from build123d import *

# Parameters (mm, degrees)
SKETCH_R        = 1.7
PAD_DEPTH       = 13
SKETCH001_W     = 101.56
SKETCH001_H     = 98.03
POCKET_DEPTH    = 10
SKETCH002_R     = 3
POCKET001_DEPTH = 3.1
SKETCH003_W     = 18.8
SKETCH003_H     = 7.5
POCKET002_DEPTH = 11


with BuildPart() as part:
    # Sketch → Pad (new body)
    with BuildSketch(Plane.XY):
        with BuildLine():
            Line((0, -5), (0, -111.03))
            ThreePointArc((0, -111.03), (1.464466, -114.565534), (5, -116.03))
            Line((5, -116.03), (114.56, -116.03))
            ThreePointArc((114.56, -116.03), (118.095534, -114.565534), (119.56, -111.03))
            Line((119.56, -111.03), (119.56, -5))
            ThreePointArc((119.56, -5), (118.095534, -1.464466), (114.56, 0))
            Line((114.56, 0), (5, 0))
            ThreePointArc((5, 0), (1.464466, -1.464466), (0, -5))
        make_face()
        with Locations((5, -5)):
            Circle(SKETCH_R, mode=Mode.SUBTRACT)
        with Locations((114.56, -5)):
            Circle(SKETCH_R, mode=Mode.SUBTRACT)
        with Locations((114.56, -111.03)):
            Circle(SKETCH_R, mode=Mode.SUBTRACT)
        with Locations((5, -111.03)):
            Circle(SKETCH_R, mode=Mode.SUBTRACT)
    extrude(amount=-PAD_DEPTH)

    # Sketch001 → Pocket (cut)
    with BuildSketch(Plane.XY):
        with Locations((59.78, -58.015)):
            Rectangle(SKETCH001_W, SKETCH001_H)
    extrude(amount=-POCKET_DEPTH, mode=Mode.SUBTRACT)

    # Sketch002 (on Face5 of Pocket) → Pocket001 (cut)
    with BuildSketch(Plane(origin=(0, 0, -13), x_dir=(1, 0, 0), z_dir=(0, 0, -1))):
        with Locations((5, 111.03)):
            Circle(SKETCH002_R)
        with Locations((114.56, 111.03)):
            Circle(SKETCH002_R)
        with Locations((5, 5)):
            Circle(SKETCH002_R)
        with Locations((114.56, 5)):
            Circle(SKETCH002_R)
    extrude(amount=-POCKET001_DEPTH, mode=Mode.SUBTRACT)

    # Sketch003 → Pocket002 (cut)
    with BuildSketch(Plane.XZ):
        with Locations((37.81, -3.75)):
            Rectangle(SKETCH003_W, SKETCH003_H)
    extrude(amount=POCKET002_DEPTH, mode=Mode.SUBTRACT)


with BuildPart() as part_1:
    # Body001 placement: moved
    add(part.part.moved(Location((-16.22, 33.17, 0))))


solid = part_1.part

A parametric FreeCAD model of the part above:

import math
import FreeCAD as App
import Part
import Sketcher
from FreeCAD import Vector
Q = App.Units.Quantity

doc = App.newDocument("Part")
body = doc.addObject("PartDesign::Body", "Body")

# Sketch on XY plane
sketch1 = body.newObject("Sketcher::SketchObject", "Sketch")
sketch1.AttachmentSupport = (doc.getObject("XY_Plane"), [""])
sketch1.MapMode = "FlatFace"
sketch1.addGeometry(Part.LineSegment(Vector(0, -5, 0), Vector(0, -111, 0)), False)
sketch1.addGeometry(Part.ArcOfCircle(Part.Circle(Vector(5, -111, 0), Vector(0, 0, 1), 5), math.radians(180), math.radians(270)), False)
sketch1.addGeometry(Part.LineSegment(Vector(5, -116, 0), Vector(114.6, -116, 0)), False)
sketch1.addGeometry(Part.ArcOfCircle(Part.Circle(Vector(114.6, -111, 0), Vector(0, 0, 1), 5), math.radians(-90), math.radians(0)), False)
sketch1.addGeometry(Part.LineSegment(Vector(119.6, -111, 0), Vector(119.6, -5, 0)), False)
sketch1.addGeometry(Part.ArcOfCircle(Part.Circle(Vector(114.6, -5, 0), Vector(0, 0, 1), 5), math.radians(0), math.radians(90)), False)
sketch1.addGeometry(Part.LineSegment(Vector(114.6, 0, 0), Vector(5, 0, 0)), False)
sketch1.addGeometry(Part.ArcOfCircle(Part.Circle(Vector(5, -5, 0), Vector(0, 0, 1), 5), math.radians(90), math.radians(180)), False)
sketch1.addGeometry(Part.Circle(Vector(5, -111, 0), Vector(0, 0, 1), 1.7), False)
sketch1.addGeometry(Part.Circle(Vector(114.6, -111, 0), Vector(0, 0, 1), 1.7), False)
sketch1.addGeometry(Part.Circle(Vector(5, -5, 0), Vector(0, 0, 1), 1.7), False)
sketch1.addGeometry(Part.Circle(Vector(114.6, -5, 0), Vector(0, 0, 1), 1.7), False)
sketch1.addConstraint(Sketcher.Constraint("Tangent", 0, 2, 1, 1))
sketch1.addConstraint(Sketcher.Constraint("Tangent", 1, 2, 2, 1))
sketch1.addConstraint(Sketcher.Constraint("Tangent", 2, 2, 3, 1))
sketch1.addConstraint(Sketcher.Constraint("Tangent", 3, 2, 4, 1))
sketch1.addConstraint(Sketcher.Constraint("Tangent", 4, 2, 5, 1))
sketch1.addConstraint(Sketcher.Constraint("Tangent", 5, 2, 6, 1))
sketch1.addConstraint(Sketcher.Constraint("Tangent", 6, 2, 7, 1))
sketch1.addConstraint(Sketcher.Constraint("Tangent", 7, 2, 0, 1))
sketch1.addConstraint(Sketcher.Constraint("Vertical", 0))
sketch1.addConstraint(Sketcher.Constraint("Horizontal", 2))
sketch1.addConstraint(Sketcher.Constraint("Vertical", 4))
sketch1.addConstraint(Sketcher.Constraint("Horizontal", 6))
sketch1.addConstraint(Sketcher.Constraint("Coincident", 8, 3, 1, 3))
sketch1.addConstraint(Sketcher.Constraint("Coincident", 9, 3, 3, 3))
sketch1.addConstraint(Sketcher.Constraint("Coincident", 10, 3, 7, 3))
sketch1.addConstraint(Sketcher.Constraint("Coincident", 11, 3, 5, 3))
sketch1.addConstraint(Sketcher.Constraint("Equal", 1, 3))
sketch1.addConstraint(Sketcher.Constraint("Equal", 3, 5))
sketch1.addConstraint(Sketcher.Constraint("Equal", 5, 7))
sketch1.addConstraint(Sketcher.Constraint("Equal", 8, 9))
sketch1.addConstraint(Sketcher.Constraint("Equal", 9, 10))
sketch1.addConstraint(Sketcher.Constraint("Equal", 10, 11))
sketch1.addConstraint(Sketcher.Constraint("PointOnObject", 0, 2, -2))
sketch1.addConstraint(Sketcher.Constraint("PointOnObject", 5, 2, -1))
sketch1.addConstraint(Sketcher.Constraint("Radius", 1, Q("5 mm")))
sketch1.addConstraint(Sketcher.Constraint("Diameter", 8, Q("3.4 mm")))
sketch1.addConstraint(Sketcher.Constraint("DistanceX", 2, 1, 2, 2, Q("109.56 mm")))
sketch1.addConstraint(Sketcher.Constraint("DistanceY", 0, 2, 0, 1, Q("106.03 mm")))
pad1 = body.newObject("PartDesign::Pad", "Pad")
pad1.Profile = sketch1
pad1.Length = 13
pad1.Reversed = True

# Sketch on XY plane
sketch2 = body.newObject("Sketcher::SketchObject", "Sketch001")
sketch2.AttachmentSupport = (doc.getObject("XY_Plane"), [""])
sketch2.MapMode = "FlatFace"
sketch2.addGeometry(Part.LineSegment(Vector(9, -9, 0), Vector(9, -107, 0)), False)
sketch2.addGeometry(Part.LineSegment(Vector(9, -107, 0), Vector(111, -107, 0)), False)
sketch2.addGeometry(Part.LineSegment(Vector(111, -107, 0), Vector(111, -9, 0)), False)
sketch2.addGeometry(Part.LineSegment(Vector(111, -9, 0), Vector(9, -9, 0)), False)
sketch2.addConstraint(Sketcher.Constraint("Coincident", 0, 2, 1, 1))
sketch2.addConstraint(Sketcher.Constraint("Coincident", 1, 2, 2, 1))
sketch2.addConstraint(Sketcher.Constraint("Coincident", 2, 2, 3, 1))
sketch2.addConstraint(Sketcher.Constraint("Coincident", 3, 2, 0, 1))
sketch2.addConstraint(Sketcher.Constraint("Vertical", 0))
sketch2.addConstraint(Sketcher.Constraint("Horizontal", 1))
sketch2.addConstraint(Sketcher.Constraint("Vertical", 2))
sketch2.addConstraint(Sketcher.Constraint("Horizontal", 3))
sketch2.addConstraint(Sketcher.Constraint("DistanceX", -1, 1, 0, 2, Q("9 mm")))
sketch2.addConstraint(Sketcher.Constraint("DistanceY", 2, 2, -1, 1, Q("9 mm")))
sketch2.addConstraint(Sketcher.Constraint("DistanceX", 1, 1, 1, 2, Q("101.56 mm")))
sketch2.addConstraint(Sketcher.Constraint("DistanceY", 0, 2, 0, 1, Q("98.03 mm")))
pocket1 = body.newObject("PartDesign::Pocket", "Pocket")
pocket1.Profile = sketch2
pocket1.Length = 10

# Sketch on XY plane
sketch3 = body.newObject("Sketcher::SketchObject", "Sketch002")
sketch3.AttachmentSupport = (doc.getObject("XY_Plane"), [""])
sketch3.MapMode = "FlatFace"
sketch3.AttachmentOffset = App.Placement(Vector(0, 0, -13), App.Rotation())
sketch3.addGeometry(Part.Circle(Vector(5, -111, 0), Vector(0, 0, 1), 3), False)
sketch3.addGeometry(Part.Circle(Vector(114.6, -111, 0), Vector(0, 0, 1), 3), False)
sketch3.addGeometry(Part.Circle(Vector(5, -5, 0), Vector(0, 0, 1), 3), False)
sketch3.addGeometry(Part.Circle(Vector(114.6, -5, 0), Vector(0, 0, 1), 3), False)
sketch3.addConstraint(Sketcher.Constraint("Equal", 0, 1))
sketch3.addConstraint(Sketcher.Constraint("Equal", 1, 2))
sketch3.addConstraint(Sketcher.Constraint("Equal", 2, 3))
sketch3.addConstraint(Sketcher.Constraint("Horizontal", 0, 3, 1, 3))
sketch3.addConstraint(Sketcher.Constraint("Horizontal", 2, 3, 3, 3))
sketch3.addConstraint(Sketcher.Constraint("Vertical", 0, 3, 2, 3))
sketch3.addConstraint(Sketcher.Constraint("Vertical", 1, 3, 3, 3))
sketch3.addConstraint(Sketcher.Constraint("Diameter", 0, Q("6 mm")))
sketch3.addConstraint(Sketcher.Constraint("DistanceX", -1, 1, 0, 3, Q("5 mm")))
sketch3.addConstraint(Sketcher.Constraint("DistanceY", 2, 3, -1, 1, Q("5 mm")))
sketch3.addConstraint(Sketcher.Constraint("DistanceY", 0, 3, -1, 1, Q("111.03 mm")))
sketch3.addConstraint(Sketcher.Constraint("DistanceX", -1, 1, 1, 3, Q("114.56 mm")))
pocket2 = body.newObject("PartDesign::Pocket", "Pocket001")
pocket2.Profile = sketch3
pocket2.Length = 3.1
pocket2.Reversed = True

# Sketch on XZ plane
sketch4 = body.newObject("Sketcher::SketchObject", "Sketch003")
sketch4.AttachmentSupport = (doc.getObject("XZ_Plane"), [""])
sketch4.MapMode = "FlatFace"
sketch4.addGeometry(Part.LineSegment(Vector(28, 0, 0), Vector(28, -8, 0)), False)
sketch4.addGeometry(Part.LineSegment(Vector(28, -8, 0), Vector(47, -8, 0)), False)
sketch4.addGeometry(Part.LineSegment(Vector(47, -8, 0), Vector(47, 0, 0)), False)
sketch4.addGeometry(Part.LineSegment(Vector(47, 0, 0), Vector(28, 0, 0)), False)
sketch4.addConstraint(Sketcher.Constraint("Coincident", 0, 2, 1, 1))
sketch4.addConstraint(Sketcher.Constraint("Coincident", 1, 2, 2, 1))
sketch4.addConstraint(Sketcher.Constraint("Coincident", 2, 2, 3, 1))
sketch4.addConstraint(Sketcher.Constraint("Coincident", 3, 2, 0, 1))
sketch4.addConstraint(Sketcher.Constraint("Vertical", 0))
sketch4.addConstraint(Sketcher.Constraint("Horizontal", 1))
sketch4.addConstraint(Sketcher.Constraint("Vertical", 2))
sketch4.addConstraint(Sketcher.Constraint("Horizontal", 3))
sketch4.addConstraint(Sketcher.Constraint("PointOnObject", 2, 2, -1))
sketch4.addConstraint(Sketcher.Constraint("DistanceX", 1, 1, 1, 2, Q("18.8 mm")))
sketch4.addConstraint(Sketcher.Constraint("DistanceY", 0, 2, 0, 1, Q("7.5 mm")))
sketch4.addConstraint(Sketcher.Constraint("DistanceX", -1, 1, 0, 2, Q("28.41 mm")))
pocket3 = body.newObject("PartDesign::Pocket", "Pocket002")
pocket3.Profile = sketch4
pocket3.Length = 11
pocket3.Reversed = True
body2 = doc.addObject("PartDesign::Body", "Body001")
doc.recompute()

body.Placement = App.Placement(Vector(-16.22, 33.17, 0), App.Rotation(Vector(0, 0, 1), 0))
boolean = body2.newObject("PartDesign::Boolean", "Boolean")
boolean.Type = "Fuse"
boolean.addObjects([body])

doc.recompute()
